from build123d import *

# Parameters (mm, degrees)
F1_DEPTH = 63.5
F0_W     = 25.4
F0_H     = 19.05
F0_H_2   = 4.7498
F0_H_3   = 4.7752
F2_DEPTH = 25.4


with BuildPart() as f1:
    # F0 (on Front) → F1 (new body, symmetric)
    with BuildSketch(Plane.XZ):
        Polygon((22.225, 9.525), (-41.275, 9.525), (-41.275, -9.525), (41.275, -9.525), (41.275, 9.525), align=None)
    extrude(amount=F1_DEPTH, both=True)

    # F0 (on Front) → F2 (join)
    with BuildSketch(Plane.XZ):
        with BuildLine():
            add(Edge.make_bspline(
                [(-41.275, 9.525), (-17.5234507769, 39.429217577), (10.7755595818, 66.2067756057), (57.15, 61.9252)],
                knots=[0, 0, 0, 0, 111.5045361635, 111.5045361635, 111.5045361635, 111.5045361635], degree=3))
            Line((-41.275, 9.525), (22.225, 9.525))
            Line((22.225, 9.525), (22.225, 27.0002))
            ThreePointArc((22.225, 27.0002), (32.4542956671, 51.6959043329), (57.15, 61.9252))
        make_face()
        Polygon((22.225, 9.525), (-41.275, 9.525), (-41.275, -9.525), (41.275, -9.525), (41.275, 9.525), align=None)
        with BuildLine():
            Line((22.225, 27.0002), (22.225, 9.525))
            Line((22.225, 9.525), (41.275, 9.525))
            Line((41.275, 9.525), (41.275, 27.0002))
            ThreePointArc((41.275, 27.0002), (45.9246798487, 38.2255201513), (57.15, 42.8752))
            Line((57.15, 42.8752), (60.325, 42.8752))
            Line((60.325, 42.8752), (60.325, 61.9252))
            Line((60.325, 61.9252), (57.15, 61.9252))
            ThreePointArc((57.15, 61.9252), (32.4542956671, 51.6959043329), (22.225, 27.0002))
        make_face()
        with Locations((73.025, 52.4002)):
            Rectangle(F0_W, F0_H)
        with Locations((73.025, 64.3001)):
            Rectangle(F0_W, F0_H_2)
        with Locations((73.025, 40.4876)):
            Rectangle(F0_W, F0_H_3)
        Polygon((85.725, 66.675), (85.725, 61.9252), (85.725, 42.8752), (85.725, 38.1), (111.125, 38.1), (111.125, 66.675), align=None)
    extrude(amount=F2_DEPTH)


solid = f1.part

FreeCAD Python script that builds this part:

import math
import FreeCAD as App
import Part
import Sketcher
Q = App.Units.Quantity


def add_polygon(sketch, points):
    """Adds a closed chain of lines whose ends are joined by coincident constraints."""
    first, n = sketch.GeometryCount, len(points)
    for a, b in zip(points, points[1:] + points[:1]):
        sketch.addGeometry(Part.LineSegment(App.Vector(*a, 0), App.Vector(*b, 0)), False)
    for i in range(n):
        sketch.addConstraint(Sketcher.Constraint("Coincident", first + i, 2, first + (i + 1) % n, 1))

doc = App.newDocument("Part")
params = doc.addObject("Spreadsheet::Sheet", "Params")
for row, (alias, value) in enumerate([
    ("sketch1_width", "3.25 in"),
    ("sketch1_height", "0.75 in"),
    ("pad1_length", "5 in"),
    ("sketch2_width", "2 in"),
    ("sketch2_radius", "0.625 in"),
    ("sketch2_height", "0.75 in"),
    ("sketch2_height2", "1.438 in"),
    ("sketch2_height3", "1.125 in"),
    ("pad2_length", "1 in"),
], start=1):
    params.set(f"A{row}", alias)
    params.set(f"B{row}", "=" + value)
    params.setAlias(f"B{row}", alias)

body = doc.addObject("PartDesign::Body", "Body")

# Sketch on XZ plane
sketch1 = doc.addObject("Sketcher::SketchObject", "Sketch")
body.addObject(sketch1)
sketch1.AttachmentSupport = (doc.XZ_Plane, [""])
sketch1.MapMode = "FlatFace"
add_polygon(sketch1, [(-41, 10), (-41, -10), (41, -10), (41, 10)])  # lines 0-3
sketch1.addConstraint(Sketcher.Constraint("Vertical", 0))
sketch1.addConstraint(Sketcher.Constraint("Horizontal", 1))
sketch1.addConstraint(Sketcher.Constraint("Vertical", 2))
sketch1.addConstraint(Sketcher.Constraint("Horizontal", 3))
sketch1.addConstraint(Sketcher.Constraint("Symmetric", 0, 2, 2, 2, -1, 1))
sketch1.addConstraint(Sketcher.Constraint("DistanceX", 1, 1, 1, 2, Q("3.25 in")))
sketch1.addConstraint(Sketcher.Constraint("DistanceY", 0, 2, 0, 1, Q("0.75 in")))
sketch1.setExpression("Constraints[9]", "Params.sketch1_width")
sketch1.setExpression("Constraints[10]", "Params.sketch1_height")
pad1 = doc.addObject("PartDesign::Pad", "Pad")
body.addObject(pad1)
pad1.Profile = sketch1
pad1.setExpression("Length", "Params.pad1_length")
pad1.Midplane = True

# Sketch on XZ plane
sketch2 = doc.addObject("Sketcher::SketchObject", "Sketch001")
body.addObject(sketch2)
sketch2.AttachmentSupport = (doc.XZ_Plane, [""])
sketch2.MapMode = "FlatFace"
sketch2.addGeometry(Part.BSplineCurve([App.Vector(-41.275, 9.525, 0), App.Vector(-17.523451, 39.429218, 0), App.Vector(10.77556, 66.206776, 0), App.Vector(57.15, 61.9252, 0)], [4, 4], [0, 111.504536164], False, 3, [1, 1, 1, 1], False), False)
sketch2.addGeometry(Part.LineSegment(App.Vector(-41.275, 9.525, 0), App.Vector(-41.275, -9.525, 0)), False)
sketch2.addGeometry(Part.LineSegment(App.Vector(-41.275, -9.525, 0), App.Vector(41.275, -9.525, 0)), False)
sketch2.addGeometry(Part.LineSegment(App.Vector(41.275, -9.525, 0), App.Vector(41.275, 27.0002, 0)), False)
sketch2.addGeometry(Part.ArcOfCircle(Part.Circle(App.Vector(57.15, 27.0002, 0), App.Vector(0, 0, 1), 15.875), math.radians(90), math.radians(180)), False)
sketch2.addGeometry(Part.LineSegment(App.Vector(57.15, 42.8752, 0), App.Vector(60.325, 42.8752, 0)), False)
sketch2.addGeometry(Part.LineSegment(App.Vector(60.325, 42.8752, 0), App.Vector(60.325, 38.1, 0)), False)
sketch2.addGeometry(Part.LineSegment(App.Vector(60.325, 38.1, 0), App.Vector(111.125, 38.1, 0)), False)
sketch2.addGeometry(Part.LineSegment(App.Vector(111.125, 38.1, 0), App.Vector(111.125, 66.675, 0)), False)
sketch2.addGeometry(Part.LineSegment(App.Vector(111.125, 66.675, 0), App.Vector(60.325, 66.675, 0)), False)
sketch2.addGeometry(Part.LineSegment(App.Vector(60.325, 66.675, 0), App.Vector(60.325, 61.9252, 0)), False)
sketch2.addGeometry(Part.LineSegment(App.Vector(60.325, 61.9252, 0), App.Vector(57.15, 61.9252, 0)), False)
sketch2.addConstraint(Sketcher.Constraint("Block", 0))
sketch2.addConstraint(Sketcher.Constraint("Coincident", 0, 1, 1, 1))
sketch2.addConstraint(Sketcher.Constraint("Coincident", 1, 2, 2, 1))
sketch2.addConstraint(Sketcher.Constraint("Coincident", 2, 2, 3, 1))
sketch2.addConstraint(Sketcher.Constraint("Tangent", 3, 2, 4, 2))
sketch2.addConstraint(Sketcher.Constraint("Tangent", 4, 1, 5, 1))
sketch2.addConstraint(Sketcher.Constraint("Coincident", 5, 2, 6, 1))
sketch2.addConstraint(Sketcher.Constraint("Coincident", 6, 2, 7, 1))
sketch2.addConstraint(Sketcher.Constraint("Coincident", 7, 2, 8, 1))
sketch2.addConstraint(Sketcher.Constraint("Coincident", 8, 2, 9, 1))
sketch2.addConstraint(Sketcher.Constraint("Coincident", 9, 2, 10, 1))
sketch2.addConstraint(Sketcher.Constraint("Coincident", 10, 2, 11, 1))
sketch2.addConstraint(Sketcher.Constraint("Coincident", 11, 2, 0, 2))
sketch2.addConstraint(Sketcher.Constraint("Vertical", 1))
sketch2.addConstraint(Sketcher.Constraint("Horizontal", 2))
sketch2.addConstraint(Sketcher.Constraint("Vertical", 3))
sketch2.addConstraint(Sketcher.Constraint("Horizontal", 5))
sketch2.addConstraint(Sketcher.Constraint("Vertical", 6))
sketch2.addConstraint(Sketcher.Constraint("Horizontal", 7))
sketch2.addConstraint(Sketcher.Constraint("Vertical", 8))
sketch2.addConstraint(Sketcher.Constraint("Horizontal", 9))
sketch2.addConstraint(Sketcher.Constraint("Vertical", 10))
sketch2.addConstraint(Sketcher.Constraint("Horizontal", 11))
sketch2.addConstraint(Sketcher.Constraint("Vertical", 6, 2, 9, 2))
sketch2.addConstraint(Sketcher.Constraint("Vertical", 4, 1, 11, 2))
sketch2.addConstraint(Sketcher.Constraint("DistanceX", 7, 1, 7, 2, Q("2 in")))
sketch2.addConstraint(Sketcher.Constraint("Radius", 4, Q("0.625 in")))
sketch2.addConstraint(Sketcher.Constraint("DistanceX", 1, 2, 5, 2, Q("4 in")))
sketch2.addConstraint(Sketcher.Constraint("DistanceY", 1, 2, 1, 1, Q("0.75 in")))
sketch2.addConstraint(Sketcher.Constraint("DistanceY", -1, 1, 6, 2, Q("1.5 in")))
sketch2.addConstraint(Sketcher.Constraint("DistanceY", 3, 1, 3, 2, Q("1.438 in")))
sketch2.addConstraint(Sketcher.Constraint("DistanceY", 8, 1, 8, 2, Q("1.125 in")))
sketch2.setExpression("Constraints[25]", "Params.sketch2_width")
sketch2.setExpression("Constraints[26]", "Params.sketch2_radius")
sketch2.setExpression("Constraints[28]", "Params.sketch2_height")
sketch2.setExpression("Constraints[30]", "Params.sketch2_height2")
sketch2.setExpression("Constraints[31]", "Params.sketch2_height3")
pad2 = doc.addObject("PartDesign::Pad", "Pad001")
body.addObject(pad2)
pad2.Profile = sketch2
pad2.setExpression("Length", "Params.pad2_length")

doc.recompute()
